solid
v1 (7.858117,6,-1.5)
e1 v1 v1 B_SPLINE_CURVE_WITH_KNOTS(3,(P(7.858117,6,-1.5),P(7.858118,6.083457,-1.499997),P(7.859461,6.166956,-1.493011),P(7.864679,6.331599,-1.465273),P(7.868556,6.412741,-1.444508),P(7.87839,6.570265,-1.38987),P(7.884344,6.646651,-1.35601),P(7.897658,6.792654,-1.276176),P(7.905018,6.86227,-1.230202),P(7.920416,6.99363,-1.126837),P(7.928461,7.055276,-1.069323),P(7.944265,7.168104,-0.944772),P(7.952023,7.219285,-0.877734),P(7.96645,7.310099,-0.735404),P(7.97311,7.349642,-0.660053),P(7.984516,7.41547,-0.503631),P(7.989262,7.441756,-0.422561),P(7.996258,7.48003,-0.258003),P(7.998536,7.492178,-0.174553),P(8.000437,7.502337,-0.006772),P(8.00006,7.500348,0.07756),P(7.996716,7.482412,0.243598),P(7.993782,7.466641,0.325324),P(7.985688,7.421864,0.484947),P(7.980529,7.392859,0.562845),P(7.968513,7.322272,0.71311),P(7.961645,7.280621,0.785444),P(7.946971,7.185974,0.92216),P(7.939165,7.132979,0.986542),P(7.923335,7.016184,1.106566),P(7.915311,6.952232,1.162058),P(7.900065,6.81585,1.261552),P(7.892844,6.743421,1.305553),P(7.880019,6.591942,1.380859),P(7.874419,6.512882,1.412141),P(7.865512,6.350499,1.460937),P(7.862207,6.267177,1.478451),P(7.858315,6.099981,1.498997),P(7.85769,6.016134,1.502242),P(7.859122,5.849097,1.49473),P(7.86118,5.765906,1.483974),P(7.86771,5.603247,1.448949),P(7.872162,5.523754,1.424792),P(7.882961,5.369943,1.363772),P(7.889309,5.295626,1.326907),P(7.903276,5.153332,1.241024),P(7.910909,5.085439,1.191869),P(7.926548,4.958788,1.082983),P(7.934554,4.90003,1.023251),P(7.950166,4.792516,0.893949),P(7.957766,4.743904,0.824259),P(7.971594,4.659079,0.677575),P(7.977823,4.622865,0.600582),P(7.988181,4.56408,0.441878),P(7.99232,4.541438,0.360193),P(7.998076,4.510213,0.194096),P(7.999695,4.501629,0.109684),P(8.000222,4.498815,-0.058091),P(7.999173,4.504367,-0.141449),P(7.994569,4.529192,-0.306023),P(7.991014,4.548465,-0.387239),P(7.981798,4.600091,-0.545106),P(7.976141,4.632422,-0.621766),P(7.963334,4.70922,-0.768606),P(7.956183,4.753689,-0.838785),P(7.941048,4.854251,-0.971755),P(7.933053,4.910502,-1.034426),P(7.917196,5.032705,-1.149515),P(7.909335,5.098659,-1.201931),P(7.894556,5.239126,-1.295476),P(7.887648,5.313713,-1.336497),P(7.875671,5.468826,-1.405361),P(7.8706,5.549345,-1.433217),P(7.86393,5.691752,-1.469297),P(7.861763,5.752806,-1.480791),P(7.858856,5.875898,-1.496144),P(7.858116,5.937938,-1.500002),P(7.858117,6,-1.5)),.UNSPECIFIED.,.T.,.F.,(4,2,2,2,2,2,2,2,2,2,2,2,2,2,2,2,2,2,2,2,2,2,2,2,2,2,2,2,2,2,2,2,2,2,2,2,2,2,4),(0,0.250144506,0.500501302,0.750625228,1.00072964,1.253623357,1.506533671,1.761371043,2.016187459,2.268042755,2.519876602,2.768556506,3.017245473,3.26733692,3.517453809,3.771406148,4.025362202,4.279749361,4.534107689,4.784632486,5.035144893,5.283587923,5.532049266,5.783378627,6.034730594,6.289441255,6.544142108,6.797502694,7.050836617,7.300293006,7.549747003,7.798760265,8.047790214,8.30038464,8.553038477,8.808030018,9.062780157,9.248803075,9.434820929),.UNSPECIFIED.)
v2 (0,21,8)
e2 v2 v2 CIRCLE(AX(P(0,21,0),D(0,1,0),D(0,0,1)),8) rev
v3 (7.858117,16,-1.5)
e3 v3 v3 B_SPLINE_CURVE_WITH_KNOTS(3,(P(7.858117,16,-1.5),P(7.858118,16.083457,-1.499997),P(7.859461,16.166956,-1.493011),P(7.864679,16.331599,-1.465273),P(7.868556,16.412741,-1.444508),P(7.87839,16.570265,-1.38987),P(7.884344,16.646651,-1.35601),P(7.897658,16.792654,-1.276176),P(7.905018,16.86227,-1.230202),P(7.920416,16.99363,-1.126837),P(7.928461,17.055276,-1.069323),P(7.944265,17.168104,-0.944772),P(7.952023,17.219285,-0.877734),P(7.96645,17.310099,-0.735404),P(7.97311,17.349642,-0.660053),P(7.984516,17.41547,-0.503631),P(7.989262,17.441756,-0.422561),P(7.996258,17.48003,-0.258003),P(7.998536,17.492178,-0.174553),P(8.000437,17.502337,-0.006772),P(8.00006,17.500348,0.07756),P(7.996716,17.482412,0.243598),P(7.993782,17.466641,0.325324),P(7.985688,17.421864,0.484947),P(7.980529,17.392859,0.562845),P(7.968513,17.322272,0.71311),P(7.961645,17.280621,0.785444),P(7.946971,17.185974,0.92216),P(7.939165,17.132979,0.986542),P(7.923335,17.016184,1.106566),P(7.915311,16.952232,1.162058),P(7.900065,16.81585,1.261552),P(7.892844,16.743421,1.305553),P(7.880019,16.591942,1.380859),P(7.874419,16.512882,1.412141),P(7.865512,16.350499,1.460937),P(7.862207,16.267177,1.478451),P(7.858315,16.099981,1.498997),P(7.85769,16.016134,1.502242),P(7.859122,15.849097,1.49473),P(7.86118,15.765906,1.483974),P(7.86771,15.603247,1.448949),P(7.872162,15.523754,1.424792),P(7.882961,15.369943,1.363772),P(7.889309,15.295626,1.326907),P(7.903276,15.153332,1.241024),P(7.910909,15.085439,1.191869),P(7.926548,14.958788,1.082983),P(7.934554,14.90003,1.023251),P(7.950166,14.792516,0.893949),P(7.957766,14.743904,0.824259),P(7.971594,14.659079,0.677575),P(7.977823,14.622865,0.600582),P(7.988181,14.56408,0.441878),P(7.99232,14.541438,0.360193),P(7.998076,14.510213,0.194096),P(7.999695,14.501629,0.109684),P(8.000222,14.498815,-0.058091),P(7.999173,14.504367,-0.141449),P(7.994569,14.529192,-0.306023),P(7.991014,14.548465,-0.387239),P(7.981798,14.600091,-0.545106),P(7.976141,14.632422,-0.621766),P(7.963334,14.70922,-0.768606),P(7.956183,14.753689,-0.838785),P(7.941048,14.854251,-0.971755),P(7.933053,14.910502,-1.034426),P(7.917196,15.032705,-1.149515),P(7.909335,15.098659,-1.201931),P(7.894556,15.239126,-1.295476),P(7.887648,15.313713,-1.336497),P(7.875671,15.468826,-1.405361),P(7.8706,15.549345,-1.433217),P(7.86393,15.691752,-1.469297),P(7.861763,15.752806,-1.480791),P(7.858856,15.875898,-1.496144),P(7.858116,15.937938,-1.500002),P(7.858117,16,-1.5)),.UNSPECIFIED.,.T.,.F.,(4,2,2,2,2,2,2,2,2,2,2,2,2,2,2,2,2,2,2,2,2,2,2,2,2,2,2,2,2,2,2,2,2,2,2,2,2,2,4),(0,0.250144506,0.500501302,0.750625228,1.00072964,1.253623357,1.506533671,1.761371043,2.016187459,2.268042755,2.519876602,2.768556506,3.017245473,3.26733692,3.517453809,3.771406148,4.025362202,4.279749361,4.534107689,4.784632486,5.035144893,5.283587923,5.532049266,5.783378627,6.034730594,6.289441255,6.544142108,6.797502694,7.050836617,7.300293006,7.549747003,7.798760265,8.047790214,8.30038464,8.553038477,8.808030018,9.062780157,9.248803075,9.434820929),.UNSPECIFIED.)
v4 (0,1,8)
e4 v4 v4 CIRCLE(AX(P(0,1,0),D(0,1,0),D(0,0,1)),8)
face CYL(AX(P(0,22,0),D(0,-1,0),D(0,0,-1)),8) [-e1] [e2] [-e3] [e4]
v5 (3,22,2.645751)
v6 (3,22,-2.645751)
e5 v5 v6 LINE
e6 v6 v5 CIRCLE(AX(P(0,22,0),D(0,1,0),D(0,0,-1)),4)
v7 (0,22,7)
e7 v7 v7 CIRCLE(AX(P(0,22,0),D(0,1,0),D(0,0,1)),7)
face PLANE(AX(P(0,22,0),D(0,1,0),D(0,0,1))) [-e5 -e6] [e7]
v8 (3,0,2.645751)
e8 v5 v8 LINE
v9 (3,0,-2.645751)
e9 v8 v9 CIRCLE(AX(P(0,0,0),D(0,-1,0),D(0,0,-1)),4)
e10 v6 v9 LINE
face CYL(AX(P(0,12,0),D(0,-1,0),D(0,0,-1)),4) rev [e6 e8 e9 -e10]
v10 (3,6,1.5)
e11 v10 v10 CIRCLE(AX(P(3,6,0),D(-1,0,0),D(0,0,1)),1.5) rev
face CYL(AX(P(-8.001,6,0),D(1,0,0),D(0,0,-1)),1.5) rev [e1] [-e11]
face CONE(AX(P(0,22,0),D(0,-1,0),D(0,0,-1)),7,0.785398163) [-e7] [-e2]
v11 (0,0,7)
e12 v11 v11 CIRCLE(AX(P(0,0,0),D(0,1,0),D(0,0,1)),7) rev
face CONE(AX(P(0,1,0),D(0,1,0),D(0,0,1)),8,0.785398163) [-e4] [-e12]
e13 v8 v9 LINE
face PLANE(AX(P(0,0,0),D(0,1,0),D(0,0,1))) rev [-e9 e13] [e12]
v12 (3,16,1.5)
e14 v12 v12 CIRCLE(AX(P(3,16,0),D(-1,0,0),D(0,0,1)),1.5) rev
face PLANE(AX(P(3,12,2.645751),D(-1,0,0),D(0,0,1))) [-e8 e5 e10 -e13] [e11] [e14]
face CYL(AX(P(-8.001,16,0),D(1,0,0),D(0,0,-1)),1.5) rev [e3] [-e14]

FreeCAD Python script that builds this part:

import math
import FreeCAD as App
import Part
import Sketcher
from FreeCAD import Vector


def edges_at(feature, points):
    """Names of the edges that pass closest to the given points."""
    edges = feature.Shape.Edges
    near = lambda p: min(range(len(edges)), key=lambda i: edges[i].distToShape(Part.Vertex(*p))[0])
    return sorted({f"Edge{near(p) + 1}" for p in points})

doc = App.newDocument("Part")
body = doc.addObject("PartDesign::Body", "Body")

# Sketch on XZ plane
sketch1 = body.newObject("Sketcher::SketchObject", "Sketch")
sketch1.AttachmentSupport = (doc.getObject("XZ_Plane"), [""])
sketch1.MapMode = "FlatFace"
sketch1.addGeometry(Part.Circle(Vector(0, 0, 0), Vector(0, 0, 1), 8), False)
sketch1.addConstraint([
    Sketcher.Constraint("Coincident", 0, 3, -1, 1),
    Sketcher.Constraint("Diameter", 0, 16.0),
])
pad1 = body.newObject("PartDesign::Pad", "Pad")
pad1.Profile = sketch1
pad1.Length = 22
pad1.Reversed = True

# Sketch on XZ plane
sketch2 = body.newObject("Sketcher::SketchObject", "Sketch001")
sketch2.AttachmentSupport = (doc.getObject("XZ_Plane"), [""])
sketch2.MapMode = "FlatFace"
sketch2.addGeometry([
    Part.LineSegment(Vector(3, -2.6, 0), Vector(3, 2.6, 0)),
    Part.ArcOfCircle(Part.Circle(Vector(0, 0, 0), Vector(0, 0, 1), 4), math.radians(41), math.radians(319)),
], False)
sketch2.addConstraint([
    Sketcher.Constraint("Coincident", 0, 1, 1, 2),
    Sketcher.Constraint("Coincident", 1, 1, 0, 2),
    Sketcher.Constraint("Vertical", 0),
    Sketcher.Constraint("Coincident", 1, 3, -1, 1),
    Sketcher.Constraint("Radius", 1, 4.0),
    Sketcher.Constraint("DistanceX", -1, 1, 0, 1, 3.0),
])
pocket1 = body.newObject("PartDesign::Pocket", "Pocket")
pocket1.Profile = sketch2
pocket1.Length = 12

# Sketch on XZ plane
sketch3 = body.newObject("Sketcher::SketchObject", "Sketch002")
sketch3.AttachmentSupport = (doc.getObject("XZ_Plane"), [""])
sketch3.MapMode = "FlatFace"
sketch3.AttachmentOffset = App.Placement(Vector(0, 0, -22), App.Rotation())
sketch3.addGeometry([
    Part.LineSegment(Vector(3, 2.6, 0), Vector(3, -2.6, 0)),
    Part.ArcOfCircle(Part.Circle(Vector(0, 0, 0), Vector(0, 0, 1), 4), math.radians(-90), math.radians(-41)),
    Part.ArcOfCircle(Part.Circle(Vector(0, 0, 0), Vector(0, 0, 1), 4), math.radians(90), math.radians(270)),
    Part.ArcOfCircle(Part.Circle(Vector(0, 0, 0), Vector(0, 0, 1), 4), math.radians(41), math.radians(90)),
], False)
sketch3.addConstraint([
    Sketcher.Constraint("Coincident", 0, 2, 1, 2),
    Sketcher.Constraint("Tangent", 1, 1, 2, 2),
    Sketcher.Constraint("Tangent", 2, 1, 3, 2),
    Sketcher.Constraint("Coincident", 3, 1, 0, 1),
    Sketcher.Constraint("Vertical", 0),
    Sketcher.Constraint("Coincident", 1, 3, -1, 1),
    Sketcher.Constraint("Equal", 1, 2),
    Sketcher.Constraint("Equal", 2, 3),
    Sketcher.Constraint("PointOnObject", 1, 1, -2),
    Sketcher.Constraint("PointOnObject", 2, 1, -2),
    Sketcher.Constraint("Radius", 1, 4.0),
    Sketcher.Constraint("DistanceX", -1, 1, 0, 2, 3.0),
])
pocket2 = body.newObject("PartDesign::Pocket", "Pocket001")
pocket2.Profile = sketch3
pocket2.Length = 10
pocket2.Reversed = True
doc.recompute()

chamfer = body.newObject("PartDesign::Chamfer", "Chamfer")
chamfer.Base = (pocket2, edges_at(pocket2, [(-8, 0, 0), (-8, 22, 0)]))
chamfer.Size = 1

# Sketch on YZ plane
sketch4 = body.newObject("Sketcher::SketchObject", "Sketch003")
sketch4.AttachmentSupport = (doc.getObject("YZ_Plane"), [""])
sketch4.MapMode = "FlatFace"
sketch4.AttachmentOffset = App.Placement(Vector(0, 0, 8), App.Rotation())
sketch4.addGeometry(Part.Circle(Vector(16, 0, 0), Vector(0, 0, 1), 1.5), False)
sketch4.addConstraint([
    Sketcher.Constraint("PointOnObject", 0, 3, -1),
    Sketcher.Constraint("Diameter", 0, 3.0),
    Sketcher.Constraint("DistanceX", -1, 1, 0, 3, 16.0),
])
pocket3 = body.newObject("PartDesign::Pocket", "Pocket002")
pocket3.Profile = sketch4
pocket3.Type = "UpToFirst"

# Sketch on YZ plane
sketch5 = body.newObject("Sketcher::SketchObject", "Sketch004")
sketch5.AttachmentSupport = (doc.getObject("YZ_Plane"), [""])
sketch5.MapMode = "FlatFace"
sketch5.AttachmentOffset = App.Placement(Vector(0, 0, 8), App.Rotation())
sketch5.addGeometry(Part.Circle(Vector(6, 0, 0), Vector(0, 0, 1), 1.5), False)
sketch5.addConstraint([
    Sketcher.Constraint("PointOnObject", 0, 3, -1),
    Sketcher.Constraint("Diameter", 0, 3.0),
    Sketcher.Constraint("DistanceX", -1, 1, 0, 3, 6.0),
])
pocket4 = body.newObject("PartDesign::Pocket", "Pocket003")
pocket4.Profile = sketch5
pocket4.Type = "UpToFirst"

doc.recompute()
